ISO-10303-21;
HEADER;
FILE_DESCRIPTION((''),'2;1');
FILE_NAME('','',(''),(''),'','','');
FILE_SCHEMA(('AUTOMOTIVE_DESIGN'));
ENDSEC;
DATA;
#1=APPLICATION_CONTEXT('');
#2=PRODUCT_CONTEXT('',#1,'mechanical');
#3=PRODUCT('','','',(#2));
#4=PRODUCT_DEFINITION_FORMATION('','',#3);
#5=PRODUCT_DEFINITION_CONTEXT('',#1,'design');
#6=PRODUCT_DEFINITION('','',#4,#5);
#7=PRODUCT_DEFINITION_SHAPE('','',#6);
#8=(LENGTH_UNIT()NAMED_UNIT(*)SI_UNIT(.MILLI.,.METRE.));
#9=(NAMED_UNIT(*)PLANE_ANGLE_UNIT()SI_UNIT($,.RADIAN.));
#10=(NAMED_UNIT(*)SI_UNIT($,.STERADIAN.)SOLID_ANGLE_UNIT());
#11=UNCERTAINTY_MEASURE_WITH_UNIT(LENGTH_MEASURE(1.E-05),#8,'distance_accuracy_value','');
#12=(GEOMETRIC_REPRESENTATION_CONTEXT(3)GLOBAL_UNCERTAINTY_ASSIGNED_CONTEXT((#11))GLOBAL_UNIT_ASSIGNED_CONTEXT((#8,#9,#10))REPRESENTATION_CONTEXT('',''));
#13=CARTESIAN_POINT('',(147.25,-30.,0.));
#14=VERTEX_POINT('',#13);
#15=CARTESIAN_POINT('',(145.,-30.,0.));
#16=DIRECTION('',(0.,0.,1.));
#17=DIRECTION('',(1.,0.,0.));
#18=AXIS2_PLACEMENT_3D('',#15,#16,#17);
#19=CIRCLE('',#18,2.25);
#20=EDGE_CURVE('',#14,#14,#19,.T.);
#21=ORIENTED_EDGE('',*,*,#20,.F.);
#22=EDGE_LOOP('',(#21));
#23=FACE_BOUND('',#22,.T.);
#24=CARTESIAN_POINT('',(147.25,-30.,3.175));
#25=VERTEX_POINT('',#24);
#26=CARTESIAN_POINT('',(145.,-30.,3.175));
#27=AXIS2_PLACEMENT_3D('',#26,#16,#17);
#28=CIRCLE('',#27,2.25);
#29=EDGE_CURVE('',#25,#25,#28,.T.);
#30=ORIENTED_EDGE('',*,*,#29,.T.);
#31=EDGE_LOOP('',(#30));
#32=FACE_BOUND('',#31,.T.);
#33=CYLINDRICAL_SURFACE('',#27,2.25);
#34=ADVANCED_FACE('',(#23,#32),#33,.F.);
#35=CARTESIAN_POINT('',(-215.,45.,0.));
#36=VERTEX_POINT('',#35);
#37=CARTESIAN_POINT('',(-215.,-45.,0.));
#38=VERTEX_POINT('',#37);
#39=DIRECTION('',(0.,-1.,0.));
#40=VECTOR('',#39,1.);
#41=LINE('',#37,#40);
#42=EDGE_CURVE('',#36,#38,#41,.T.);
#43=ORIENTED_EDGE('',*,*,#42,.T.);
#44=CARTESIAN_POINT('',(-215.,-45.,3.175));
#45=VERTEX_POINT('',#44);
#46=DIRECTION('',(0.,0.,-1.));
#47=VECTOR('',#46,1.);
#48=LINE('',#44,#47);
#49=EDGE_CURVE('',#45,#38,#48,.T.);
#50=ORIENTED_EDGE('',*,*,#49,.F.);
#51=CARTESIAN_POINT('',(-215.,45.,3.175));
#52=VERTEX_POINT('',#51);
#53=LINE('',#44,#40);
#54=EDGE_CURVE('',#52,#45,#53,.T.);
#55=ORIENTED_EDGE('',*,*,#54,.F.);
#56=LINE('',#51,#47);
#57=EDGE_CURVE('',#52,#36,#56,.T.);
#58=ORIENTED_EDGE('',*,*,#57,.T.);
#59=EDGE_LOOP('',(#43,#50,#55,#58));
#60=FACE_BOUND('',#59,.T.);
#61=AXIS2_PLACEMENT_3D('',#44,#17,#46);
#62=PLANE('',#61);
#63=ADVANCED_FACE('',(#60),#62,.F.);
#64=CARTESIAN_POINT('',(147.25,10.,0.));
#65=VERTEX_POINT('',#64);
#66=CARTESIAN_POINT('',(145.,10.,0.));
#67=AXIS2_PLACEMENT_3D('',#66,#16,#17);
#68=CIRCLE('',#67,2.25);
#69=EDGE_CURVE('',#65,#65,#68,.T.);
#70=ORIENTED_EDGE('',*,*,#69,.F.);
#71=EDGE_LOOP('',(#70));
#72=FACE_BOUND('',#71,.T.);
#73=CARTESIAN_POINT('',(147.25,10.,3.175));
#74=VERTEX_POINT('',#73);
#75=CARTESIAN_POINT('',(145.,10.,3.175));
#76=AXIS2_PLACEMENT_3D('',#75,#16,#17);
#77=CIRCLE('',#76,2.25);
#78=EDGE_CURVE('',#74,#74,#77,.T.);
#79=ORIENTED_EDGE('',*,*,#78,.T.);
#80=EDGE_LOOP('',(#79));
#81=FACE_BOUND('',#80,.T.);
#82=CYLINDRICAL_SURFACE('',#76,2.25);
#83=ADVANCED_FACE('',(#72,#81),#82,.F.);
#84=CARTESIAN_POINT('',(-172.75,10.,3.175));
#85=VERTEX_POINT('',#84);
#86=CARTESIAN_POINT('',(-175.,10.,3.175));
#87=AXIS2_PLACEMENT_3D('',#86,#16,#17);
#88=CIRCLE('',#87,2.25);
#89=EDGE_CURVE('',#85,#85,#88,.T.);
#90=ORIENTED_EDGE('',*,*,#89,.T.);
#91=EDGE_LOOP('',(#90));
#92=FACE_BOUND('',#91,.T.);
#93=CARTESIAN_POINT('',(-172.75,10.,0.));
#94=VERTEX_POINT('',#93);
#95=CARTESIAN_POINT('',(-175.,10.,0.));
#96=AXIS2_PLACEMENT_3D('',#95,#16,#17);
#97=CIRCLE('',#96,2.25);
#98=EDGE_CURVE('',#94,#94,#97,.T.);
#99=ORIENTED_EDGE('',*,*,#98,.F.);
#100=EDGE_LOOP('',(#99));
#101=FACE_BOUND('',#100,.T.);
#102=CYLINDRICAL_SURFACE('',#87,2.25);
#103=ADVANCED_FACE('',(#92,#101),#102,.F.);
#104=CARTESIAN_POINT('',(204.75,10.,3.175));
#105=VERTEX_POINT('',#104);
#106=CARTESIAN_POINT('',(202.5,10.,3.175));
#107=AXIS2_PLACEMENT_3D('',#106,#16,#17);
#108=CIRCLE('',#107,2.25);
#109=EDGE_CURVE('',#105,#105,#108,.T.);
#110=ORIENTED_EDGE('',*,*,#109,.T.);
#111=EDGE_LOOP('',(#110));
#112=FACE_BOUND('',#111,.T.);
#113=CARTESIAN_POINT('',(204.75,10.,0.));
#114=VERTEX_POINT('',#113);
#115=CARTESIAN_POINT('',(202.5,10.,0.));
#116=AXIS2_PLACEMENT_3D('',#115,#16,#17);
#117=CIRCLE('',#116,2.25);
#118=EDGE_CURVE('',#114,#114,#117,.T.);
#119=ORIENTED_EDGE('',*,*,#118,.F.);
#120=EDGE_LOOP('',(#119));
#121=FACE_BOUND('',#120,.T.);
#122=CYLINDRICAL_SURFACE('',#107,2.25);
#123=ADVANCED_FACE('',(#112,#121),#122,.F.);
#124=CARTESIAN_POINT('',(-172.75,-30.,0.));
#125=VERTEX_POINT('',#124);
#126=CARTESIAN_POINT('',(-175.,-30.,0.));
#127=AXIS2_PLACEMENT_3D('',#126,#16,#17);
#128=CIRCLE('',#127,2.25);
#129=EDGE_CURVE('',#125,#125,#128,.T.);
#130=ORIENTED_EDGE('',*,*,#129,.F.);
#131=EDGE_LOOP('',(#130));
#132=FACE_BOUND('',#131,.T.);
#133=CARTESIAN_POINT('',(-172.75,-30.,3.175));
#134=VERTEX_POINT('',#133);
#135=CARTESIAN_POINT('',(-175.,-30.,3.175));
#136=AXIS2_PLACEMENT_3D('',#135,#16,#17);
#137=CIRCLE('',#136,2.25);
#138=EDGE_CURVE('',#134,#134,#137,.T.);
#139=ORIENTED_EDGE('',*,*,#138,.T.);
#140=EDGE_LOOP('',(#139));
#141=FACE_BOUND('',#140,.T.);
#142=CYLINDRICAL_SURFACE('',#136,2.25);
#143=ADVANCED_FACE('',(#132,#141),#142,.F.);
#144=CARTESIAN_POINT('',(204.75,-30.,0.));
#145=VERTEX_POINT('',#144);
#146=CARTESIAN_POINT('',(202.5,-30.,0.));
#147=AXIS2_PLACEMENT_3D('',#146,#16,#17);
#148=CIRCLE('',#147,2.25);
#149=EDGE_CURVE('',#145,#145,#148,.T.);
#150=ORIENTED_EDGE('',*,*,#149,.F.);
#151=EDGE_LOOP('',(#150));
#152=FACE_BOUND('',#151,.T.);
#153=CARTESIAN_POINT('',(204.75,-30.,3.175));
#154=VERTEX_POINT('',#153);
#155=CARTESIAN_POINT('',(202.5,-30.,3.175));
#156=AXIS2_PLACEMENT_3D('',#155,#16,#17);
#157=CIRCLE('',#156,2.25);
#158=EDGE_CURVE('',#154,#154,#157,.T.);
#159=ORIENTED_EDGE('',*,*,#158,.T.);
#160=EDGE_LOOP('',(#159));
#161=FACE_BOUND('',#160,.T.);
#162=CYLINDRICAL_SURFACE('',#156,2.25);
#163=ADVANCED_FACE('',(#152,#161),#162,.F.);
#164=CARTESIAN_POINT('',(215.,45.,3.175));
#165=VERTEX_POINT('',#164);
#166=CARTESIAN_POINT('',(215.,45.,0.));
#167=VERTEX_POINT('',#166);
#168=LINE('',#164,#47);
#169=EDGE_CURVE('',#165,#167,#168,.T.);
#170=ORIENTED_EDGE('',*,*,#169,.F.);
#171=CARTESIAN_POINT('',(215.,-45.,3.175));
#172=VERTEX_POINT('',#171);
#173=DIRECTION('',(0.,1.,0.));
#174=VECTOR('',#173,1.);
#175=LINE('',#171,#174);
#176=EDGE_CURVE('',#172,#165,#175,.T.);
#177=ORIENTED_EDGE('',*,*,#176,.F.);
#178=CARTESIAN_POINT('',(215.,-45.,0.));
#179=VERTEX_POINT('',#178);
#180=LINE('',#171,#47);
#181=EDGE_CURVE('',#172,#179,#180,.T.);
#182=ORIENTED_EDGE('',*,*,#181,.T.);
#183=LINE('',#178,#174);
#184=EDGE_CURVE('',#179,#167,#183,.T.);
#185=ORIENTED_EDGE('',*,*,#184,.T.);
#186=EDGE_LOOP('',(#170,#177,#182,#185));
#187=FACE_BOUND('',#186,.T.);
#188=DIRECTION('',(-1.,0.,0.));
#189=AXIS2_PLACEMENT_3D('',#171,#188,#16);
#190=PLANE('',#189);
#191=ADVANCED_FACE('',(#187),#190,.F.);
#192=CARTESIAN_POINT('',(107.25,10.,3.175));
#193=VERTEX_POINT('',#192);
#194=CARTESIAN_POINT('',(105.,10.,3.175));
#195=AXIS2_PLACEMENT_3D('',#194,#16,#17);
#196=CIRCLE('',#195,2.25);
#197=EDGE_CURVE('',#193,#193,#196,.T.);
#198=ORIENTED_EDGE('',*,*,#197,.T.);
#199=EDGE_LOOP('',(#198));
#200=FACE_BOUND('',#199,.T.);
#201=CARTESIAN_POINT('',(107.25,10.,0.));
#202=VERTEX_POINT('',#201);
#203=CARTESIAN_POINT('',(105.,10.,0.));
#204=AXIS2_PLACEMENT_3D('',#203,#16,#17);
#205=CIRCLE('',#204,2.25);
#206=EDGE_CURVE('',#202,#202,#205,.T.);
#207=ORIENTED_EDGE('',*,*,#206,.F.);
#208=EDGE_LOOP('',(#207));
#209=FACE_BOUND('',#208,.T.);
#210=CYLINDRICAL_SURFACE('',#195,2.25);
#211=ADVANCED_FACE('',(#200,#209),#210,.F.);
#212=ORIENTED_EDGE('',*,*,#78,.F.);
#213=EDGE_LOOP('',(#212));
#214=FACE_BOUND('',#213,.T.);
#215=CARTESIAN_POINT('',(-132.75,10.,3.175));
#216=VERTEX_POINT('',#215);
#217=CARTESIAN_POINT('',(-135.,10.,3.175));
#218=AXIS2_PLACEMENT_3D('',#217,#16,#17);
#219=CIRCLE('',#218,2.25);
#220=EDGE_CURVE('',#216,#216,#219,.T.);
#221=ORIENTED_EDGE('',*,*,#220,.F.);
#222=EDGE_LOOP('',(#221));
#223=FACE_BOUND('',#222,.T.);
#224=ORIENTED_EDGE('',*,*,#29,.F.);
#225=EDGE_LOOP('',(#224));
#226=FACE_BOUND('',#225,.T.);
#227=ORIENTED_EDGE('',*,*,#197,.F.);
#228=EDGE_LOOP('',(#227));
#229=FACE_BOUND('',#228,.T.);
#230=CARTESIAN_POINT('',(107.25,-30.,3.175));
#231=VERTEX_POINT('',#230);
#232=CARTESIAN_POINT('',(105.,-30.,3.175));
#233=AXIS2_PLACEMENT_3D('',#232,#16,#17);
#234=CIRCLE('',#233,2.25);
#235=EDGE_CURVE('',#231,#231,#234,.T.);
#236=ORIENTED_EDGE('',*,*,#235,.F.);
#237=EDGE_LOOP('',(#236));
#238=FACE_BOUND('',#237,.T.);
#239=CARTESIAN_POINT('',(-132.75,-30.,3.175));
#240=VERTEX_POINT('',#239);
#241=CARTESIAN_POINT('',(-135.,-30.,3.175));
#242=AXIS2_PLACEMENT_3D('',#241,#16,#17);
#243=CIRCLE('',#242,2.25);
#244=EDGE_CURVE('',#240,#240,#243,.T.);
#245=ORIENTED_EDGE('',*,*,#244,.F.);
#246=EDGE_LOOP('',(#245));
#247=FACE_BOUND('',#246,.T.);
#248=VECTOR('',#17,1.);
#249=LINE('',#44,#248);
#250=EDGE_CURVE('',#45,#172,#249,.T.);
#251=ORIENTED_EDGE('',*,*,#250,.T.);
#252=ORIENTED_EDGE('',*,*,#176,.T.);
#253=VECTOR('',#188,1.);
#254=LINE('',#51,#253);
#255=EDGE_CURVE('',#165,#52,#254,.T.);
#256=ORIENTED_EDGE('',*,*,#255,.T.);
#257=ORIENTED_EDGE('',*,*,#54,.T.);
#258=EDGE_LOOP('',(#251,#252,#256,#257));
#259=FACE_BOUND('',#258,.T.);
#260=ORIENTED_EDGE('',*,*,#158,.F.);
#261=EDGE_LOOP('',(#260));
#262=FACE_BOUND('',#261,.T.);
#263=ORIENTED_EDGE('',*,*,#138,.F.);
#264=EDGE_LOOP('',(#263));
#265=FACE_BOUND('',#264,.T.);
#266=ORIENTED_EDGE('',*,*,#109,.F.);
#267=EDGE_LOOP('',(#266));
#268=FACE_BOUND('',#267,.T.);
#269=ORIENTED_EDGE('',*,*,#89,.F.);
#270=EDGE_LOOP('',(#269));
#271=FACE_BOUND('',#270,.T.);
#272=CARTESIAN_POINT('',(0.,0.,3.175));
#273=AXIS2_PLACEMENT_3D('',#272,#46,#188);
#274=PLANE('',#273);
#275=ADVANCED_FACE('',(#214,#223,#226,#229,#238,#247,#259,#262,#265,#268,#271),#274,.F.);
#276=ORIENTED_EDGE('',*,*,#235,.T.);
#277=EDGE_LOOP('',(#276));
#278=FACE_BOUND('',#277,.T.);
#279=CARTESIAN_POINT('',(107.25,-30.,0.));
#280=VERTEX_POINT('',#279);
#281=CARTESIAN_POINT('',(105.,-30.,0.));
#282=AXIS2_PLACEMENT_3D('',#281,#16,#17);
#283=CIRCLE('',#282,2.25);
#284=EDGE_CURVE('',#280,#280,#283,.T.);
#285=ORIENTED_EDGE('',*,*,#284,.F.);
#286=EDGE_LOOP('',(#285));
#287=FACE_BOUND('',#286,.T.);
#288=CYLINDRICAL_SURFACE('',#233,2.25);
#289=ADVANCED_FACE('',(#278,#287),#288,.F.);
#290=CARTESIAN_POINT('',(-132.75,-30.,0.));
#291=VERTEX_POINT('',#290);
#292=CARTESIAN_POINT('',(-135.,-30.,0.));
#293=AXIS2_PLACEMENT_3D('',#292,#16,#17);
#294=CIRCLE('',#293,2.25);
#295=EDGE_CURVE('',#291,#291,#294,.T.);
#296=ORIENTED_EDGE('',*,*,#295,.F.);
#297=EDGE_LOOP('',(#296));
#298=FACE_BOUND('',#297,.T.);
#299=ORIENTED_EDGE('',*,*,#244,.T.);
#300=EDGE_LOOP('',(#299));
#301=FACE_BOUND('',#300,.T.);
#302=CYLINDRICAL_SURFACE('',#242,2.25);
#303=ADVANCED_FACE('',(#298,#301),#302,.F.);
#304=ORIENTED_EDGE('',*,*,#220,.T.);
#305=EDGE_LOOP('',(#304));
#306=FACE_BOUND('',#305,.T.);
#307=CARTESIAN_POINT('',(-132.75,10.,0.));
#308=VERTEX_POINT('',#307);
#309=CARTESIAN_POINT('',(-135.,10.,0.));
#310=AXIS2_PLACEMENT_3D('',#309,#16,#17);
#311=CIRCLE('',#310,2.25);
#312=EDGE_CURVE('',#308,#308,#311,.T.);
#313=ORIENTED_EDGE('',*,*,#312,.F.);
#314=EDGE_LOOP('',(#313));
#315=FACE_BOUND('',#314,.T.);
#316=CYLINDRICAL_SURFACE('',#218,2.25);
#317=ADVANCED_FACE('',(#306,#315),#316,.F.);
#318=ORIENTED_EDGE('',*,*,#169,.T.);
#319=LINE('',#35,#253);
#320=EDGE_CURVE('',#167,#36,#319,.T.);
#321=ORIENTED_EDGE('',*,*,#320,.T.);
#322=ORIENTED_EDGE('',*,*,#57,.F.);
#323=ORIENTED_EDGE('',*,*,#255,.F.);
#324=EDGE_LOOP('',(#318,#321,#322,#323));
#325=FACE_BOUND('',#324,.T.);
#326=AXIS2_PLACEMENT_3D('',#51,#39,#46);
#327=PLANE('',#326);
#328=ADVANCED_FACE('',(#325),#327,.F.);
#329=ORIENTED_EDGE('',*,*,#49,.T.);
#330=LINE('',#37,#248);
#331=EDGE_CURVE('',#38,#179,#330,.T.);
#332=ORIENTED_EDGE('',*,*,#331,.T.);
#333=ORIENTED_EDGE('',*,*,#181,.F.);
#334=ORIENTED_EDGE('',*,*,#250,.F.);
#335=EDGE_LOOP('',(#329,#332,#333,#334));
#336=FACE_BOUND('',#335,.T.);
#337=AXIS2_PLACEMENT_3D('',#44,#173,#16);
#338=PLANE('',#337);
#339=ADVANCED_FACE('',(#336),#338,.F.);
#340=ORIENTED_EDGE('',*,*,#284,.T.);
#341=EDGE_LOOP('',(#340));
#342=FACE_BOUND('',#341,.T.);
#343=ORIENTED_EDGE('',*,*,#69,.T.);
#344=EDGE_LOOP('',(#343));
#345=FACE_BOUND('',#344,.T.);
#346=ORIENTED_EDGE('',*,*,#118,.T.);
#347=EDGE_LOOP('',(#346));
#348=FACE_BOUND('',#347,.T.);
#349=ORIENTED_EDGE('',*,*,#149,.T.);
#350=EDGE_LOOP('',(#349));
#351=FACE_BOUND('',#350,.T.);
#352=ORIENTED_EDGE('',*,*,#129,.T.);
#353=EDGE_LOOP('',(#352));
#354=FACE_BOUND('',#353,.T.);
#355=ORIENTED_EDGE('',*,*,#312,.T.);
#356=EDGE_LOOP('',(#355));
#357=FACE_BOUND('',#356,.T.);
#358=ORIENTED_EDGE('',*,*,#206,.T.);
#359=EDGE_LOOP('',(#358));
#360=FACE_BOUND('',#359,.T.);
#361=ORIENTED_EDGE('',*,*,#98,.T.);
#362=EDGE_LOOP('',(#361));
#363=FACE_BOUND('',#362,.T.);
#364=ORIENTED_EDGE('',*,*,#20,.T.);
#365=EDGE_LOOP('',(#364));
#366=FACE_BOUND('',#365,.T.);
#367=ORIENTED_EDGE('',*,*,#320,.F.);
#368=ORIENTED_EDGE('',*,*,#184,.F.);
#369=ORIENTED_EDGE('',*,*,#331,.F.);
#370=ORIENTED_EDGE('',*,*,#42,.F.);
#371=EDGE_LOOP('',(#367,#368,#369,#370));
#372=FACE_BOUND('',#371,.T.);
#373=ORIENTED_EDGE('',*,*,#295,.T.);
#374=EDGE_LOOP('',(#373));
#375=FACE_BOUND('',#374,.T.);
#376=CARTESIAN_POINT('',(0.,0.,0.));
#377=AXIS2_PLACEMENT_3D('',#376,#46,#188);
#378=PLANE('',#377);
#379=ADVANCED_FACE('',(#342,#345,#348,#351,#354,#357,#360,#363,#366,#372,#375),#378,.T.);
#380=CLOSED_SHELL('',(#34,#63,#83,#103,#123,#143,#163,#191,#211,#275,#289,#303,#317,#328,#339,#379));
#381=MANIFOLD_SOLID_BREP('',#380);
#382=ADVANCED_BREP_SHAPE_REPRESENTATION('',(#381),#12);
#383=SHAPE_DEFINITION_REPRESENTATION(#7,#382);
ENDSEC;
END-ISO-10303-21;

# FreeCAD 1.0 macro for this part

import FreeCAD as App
import Part
import Sketcher
from FreeCAD import Vector

doc = App.newDocument("Part")
body = doc.addObject("PartDesign::Body", "Body")

sketch1 = body.newObject("Sketcher::SketchObject", "Sketch")
sketch1.AttachmentSupport = (doc.getObject("XY_Plane"), [""])
sketch1.MapMode = "FlatFace"
sketch1.addGeometry([
    Part.LineSegment(Vector(-215, 45, 0), Vector(-215, -45, 0)),
    Part.LineSegment(Vector(-215, -45, 0), Vector(215, -45, 0)),
    Part.LineSegment(Vector(215, -45, 0), Vector(215, 45, 0)),
    Part.LineSegment(Vector(215, 45, 0), Vector(-215, 45, 0)),
], False)
sketch1.addConstraint([
    Sketcher.Constraint("Coincident", 0, 2, 1, 1),
    Sketcher.Constraint("Coincident", 1, 2, 2, 1),
    Sketcher.Constraint("Coincident", 2, 2, 3, 1),
    Sketcher.Constraint("Coincident", 3, 2, 0, 1),
    Sketcher.Constraint("Vertical", 0),
    Sketcher.Constraint("Horizontal", 1),
    Sketcher.Constraint("Vertical", 2),
    Sketcher.Constraint("Horizontal", 3),
    Sketcher.Constraint("Symmetric", 0, 2, 2, 2, -1, 1),
    Sketcher.Constraint("DistanceX", 1, 1, 1, 2, 430.0),
    Sketcher.Constraint("DistanceY", 0, 2, 0, 1, 90.0),
])
pad1 = body.newObject("PartDesign::Pad", "Pad")
pad1.Profile = sketch1
pad1.Length = 3.175

sketch2 = body.newObject("Sketcher::SketchObject", "Sketch001")
sketch2.AttachmentSupport = (doc.getObject("XY_Plane"), [""])
sketch2.MapMode = "FlatFace"
sketch2.AttachmentOffset = App.Placement(Vector(0, 0, 3.175), App.Rotation())
sketch2.addGeometry([
    Part.Circle(Vector(-135, 10, 0), Vector(0, 0, 1), 2.2),
    Part.Circle(Vector(-175, -30, 0), Vector(0, 0, 1), 2.2),
    Part.Circle(Vector(-175, 10, 0), Vector(0, 0, 1), 2.2),
    Part.Circle(Vector(-135, -30, 0), Vector(0, 0, 1), 2.2),
    Part.Circle(Vector(145, 10, 0), Vector(0, 0, 1), 2.2),
    Part.Circle(Vector(105, -30, 0), Vector(0, 0, 1), 2.2),
    Part.Circle(Vector(105, 10, 0), Vector(0, 0, 1), 2.2),
    Part.Circle(Vector(145, -30, 0), Vector(0, 0, 1), 2.2),
    Part.Circle(Vector(202.5, 10, 0), Vector(0, 0, 1), 2.2),
    Part.Circle(Vector(202.5, -30, 0), Vector(0, 0, 1), 2.2),
], False)
sketch2.addConstraint([
    Sketcher.Constraint("Equal", 0, 1),
    Sketcher.Constraint("Equal", 1, 2),
    Sketcher.Constraint("Equal", 2, 3),
    Sketcher.Constraint("Equal", 3, 4),
    Sketcher.Constraint("Equal", 4, 5),
    Sketcher.Constraint("Equal", 5, 6),
    Sketcher.Constraint("Equal", 6, 7),
    Sketcher.Constraint("Equal", 7, 8),
    Sketcher.Constraint("Equal", 8, 9),
    Sketcher.Constraint("Horizontal", 0, 3, 2, 3),
    Sketcher.Constraint("Horizontal", 1, 3, 3, 3),
    Sketcher.Constraint("Horizontal", 2, 3, 4, 3),
    Sketcher.Constraint("Horizontal", 3, 3, 5, 3),
    Sketcher.Constraint("Horizontal", 4, 3, 6, 3),
    Sketcher.Constraint("Horizontal", 5, 3, 7, 3),
    Sketcher.Constraint("Horizontal", 6, 3, 8, 3),
    Sketcher.Constraint("Horizontal", 7, 3, 9, 3),
    Sketcher.Constraint("Vertical", 1, 3, 2, 3),
    Sketcher.Constraint("Vertical", 0, 3, 3, 3),
    Sketcher.Constraint("Vertical", 5, 3, 6, 3),
    Sketcher.Constraint("Vertical", 4, 3, 7, 3),
    Sketcher.Constraint("Vertical", 8, 3, 9, 3),
    Sketcher.Constraint("Diameter", 0, 4.5),
    Sketcher.Constraint("DistanceX", 0, 3, -1, 1, 135.0),
    Sketcher.Constraint("DistanceY", -1, 1, 0, 3, 10.0),
    Sketcher.Constraint("DistanceX", 1, 3, -1, 1, 175.0),
    Sketcher.Constraint("DistanceY", 1, 3, -1, 1, 30.0),
    Sketcher.Constraint("DistanceX", -1, 1, 4, 3, 145.0),
    Sketcher.Constraint("DistanceX", -1, 1, 5, 3, 105.0),
    Sketcher.Constraint("DistanceX", -1, 1, 8, 3, 202.5),
])
doc.recompute()
hole = body.newObject("PartDesign::Hole", "Hole")
hole.Profile = sketch2
hole.ThreadType = "None"
hole.Diameter = 4.5
hole.DepthType = "ThroughAll"

doc.recompute()
